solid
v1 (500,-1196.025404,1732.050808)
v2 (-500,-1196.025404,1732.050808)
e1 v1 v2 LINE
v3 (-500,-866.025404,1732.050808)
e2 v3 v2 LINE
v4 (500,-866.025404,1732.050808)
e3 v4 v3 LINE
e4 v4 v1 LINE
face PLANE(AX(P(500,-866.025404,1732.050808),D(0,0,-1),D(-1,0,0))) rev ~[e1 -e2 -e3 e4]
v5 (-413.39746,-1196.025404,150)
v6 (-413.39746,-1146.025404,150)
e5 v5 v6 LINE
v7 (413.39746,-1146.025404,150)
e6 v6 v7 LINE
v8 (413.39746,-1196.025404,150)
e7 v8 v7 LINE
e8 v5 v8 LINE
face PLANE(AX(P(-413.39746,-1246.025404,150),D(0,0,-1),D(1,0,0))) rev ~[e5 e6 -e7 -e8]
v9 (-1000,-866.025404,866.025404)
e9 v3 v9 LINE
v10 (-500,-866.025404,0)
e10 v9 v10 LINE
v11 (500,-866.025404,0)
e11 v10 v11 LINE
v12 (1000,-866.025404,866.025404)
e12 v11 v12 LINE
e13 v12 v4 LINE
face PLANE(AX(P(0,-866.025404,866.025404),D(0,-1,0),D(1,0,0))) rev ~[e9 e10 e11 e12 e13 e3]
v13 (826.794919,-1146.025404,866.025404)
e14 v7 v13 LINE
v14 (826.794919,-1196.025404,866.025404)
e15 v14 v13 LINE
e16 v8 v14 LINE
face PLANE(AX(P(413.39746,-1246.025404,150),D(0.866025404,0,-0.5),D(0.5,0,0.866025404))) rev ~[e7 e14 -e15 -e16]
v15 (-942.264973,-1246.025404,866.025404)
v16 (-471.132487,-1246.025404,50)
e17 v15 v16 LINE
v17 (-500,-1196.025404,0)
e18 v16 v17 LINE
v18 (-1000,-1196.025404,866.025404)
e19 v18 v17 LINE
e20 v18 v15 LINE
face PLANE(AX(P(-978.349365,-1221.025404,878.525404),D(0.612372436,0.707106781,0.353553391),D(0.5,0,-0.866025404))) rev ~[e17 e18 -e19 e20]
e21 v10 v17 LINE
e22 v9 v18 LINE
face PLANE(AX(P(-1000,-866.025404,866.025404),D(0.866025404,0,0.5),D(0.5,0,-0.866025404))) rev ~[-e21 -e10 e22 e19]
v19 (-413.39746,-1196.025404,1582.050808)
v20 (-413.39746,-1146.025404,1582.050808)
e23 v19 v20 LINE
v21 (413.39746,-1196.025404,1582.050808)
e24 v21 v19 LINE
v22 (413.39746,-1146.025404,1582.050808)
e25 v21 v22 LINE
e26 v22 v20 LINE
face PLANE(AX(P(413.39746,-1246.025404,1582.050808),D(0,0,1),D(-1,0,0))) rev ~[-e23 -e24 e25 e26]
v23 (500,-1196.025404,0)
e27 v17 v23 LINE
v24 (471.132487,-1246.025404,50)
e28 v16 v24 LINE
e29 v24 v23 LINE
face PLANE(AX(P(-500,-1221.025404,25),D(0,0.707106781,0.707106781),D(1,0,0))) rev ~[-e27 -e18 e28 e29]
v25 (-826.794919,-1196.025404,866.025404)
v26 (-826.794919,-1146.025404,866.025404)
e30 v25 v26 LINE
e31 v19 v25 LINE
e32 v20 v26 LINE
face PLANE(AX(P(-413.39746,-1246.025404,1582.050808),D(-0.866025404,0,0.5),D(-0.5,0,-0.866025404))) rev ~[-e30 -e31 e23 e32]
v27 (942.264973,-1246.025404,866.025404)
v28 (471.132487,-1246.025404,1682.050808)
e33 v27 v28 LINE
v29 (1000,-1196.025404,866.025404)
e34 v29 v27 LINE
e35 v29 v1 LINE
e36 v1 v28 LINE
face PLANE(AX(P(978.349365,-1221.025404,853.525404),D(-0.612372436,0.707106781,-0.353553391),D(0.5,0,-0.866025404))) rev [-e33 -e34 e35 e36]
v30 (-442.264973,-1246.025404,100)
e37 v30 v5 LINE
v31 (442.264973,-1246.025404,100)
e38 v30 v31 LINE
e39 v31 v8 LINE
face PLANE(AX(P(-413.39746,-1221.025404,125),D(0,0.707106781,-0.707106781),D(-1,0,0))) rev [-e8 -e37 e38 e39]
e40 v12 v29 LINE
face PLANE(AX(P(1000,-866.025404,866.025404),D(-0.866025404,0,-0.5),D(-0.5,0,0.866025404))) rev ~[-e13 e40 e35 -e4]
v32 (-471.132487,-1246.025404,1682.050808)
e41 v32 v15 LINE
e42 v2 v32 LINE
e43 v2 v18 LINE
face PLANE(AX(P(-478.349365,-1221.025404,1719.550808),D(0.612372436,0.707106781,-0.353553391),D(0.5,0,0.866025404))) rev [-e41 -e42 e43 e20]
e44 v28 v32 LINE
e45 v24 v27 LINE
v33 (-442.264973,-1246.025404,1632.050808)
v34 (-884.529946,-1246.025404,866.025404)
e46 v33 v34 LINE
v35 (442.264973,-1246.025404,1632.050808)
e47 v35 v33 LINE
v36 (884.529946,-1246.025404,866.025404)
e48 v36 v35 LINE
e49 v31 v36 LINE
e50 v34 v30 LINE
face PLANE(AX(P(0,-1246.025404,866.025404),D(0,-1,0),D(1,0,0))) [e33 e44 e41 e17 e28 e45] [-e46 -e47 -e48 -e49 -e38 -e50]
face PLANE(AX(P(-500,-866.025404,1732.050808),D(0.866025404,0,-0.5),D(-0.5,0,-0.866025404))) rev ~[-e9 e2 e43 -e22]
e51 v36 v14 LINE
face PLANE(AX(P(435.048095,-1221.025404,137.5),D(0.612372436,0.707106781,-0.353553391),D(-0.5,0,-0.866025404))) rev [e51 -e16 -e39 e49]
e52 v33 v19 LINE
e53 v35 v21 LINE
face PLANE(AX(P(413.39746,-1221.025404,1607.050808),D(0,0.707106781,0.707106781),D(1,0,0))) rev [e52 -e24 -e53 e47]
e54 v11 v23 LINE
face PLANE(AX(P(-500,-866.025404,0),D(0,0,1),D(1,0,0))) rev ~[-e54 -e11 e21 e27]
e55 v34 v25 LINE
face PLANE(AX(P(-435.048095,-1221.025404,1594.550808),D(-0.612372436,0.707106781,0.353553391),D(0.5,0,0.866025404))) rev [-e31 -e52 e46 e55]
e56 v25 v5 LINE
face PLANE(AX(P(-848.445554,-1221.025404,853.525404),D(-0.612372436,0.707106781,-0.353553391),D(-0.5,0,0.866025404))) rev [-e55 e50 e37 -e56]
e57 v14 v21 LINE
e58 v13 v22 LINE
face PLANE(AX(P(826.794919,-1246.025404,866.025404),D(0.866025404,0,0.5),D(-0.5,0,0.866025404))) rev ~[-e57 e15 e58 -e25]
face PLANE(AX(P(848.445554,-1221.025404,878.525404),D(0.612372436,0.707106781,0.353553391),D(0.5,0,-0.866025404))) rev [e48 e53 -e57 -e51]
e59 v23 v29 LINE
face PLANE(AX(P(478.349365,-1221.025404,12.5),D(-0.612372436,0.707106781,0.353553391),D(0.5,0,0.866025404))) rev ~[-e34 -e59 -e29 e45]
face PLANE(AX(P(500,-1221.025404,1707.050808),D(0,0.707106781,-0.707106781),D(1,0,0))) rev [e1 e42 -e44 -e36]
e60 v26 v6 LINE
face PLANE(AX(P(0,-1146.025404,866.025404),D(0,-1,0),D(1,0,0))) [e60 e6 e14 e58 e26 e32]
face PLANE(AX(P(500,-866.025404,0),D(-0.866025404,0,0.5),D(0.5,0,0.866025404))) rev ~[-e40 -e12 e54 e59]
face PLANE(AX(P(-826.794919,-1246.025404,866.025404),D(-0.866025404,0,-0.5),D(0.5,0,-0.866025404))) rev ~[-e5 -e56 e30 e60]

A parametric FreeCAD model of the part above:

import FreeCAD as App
import Part
import Sketcher
Q = App.Units.Quantity


def edges_at(feature, points):
    """Names of the edges that pass closest to the given points."""
    edges = feature.Shape.Edges
    near = lambda p: min(range(len(edges)), key=lambda i: edges[i].distToShape(Part.Vertex(*p))[0])
    return sorted({f"Edge{near(p) + 1}" for p in points})

doc = App.newDocument("Part")
body = doc.addObject("PartDesign::Body", "Body")

# Sketch on XY plane
sketch1 = body.newObject("Sketcher::SketchObject", "Sketch")
sketch1.AttachmentSupport = (doc.getObject("XY_Plane"), [""])
sketch1.MapMode = "FlatFace"
sketch1.addGeometry(Part.LineSegment(App.Vector(500, 866, 0), App.Vector(-500, 866, 0)), False)
sketch1.addGeometry(Part.LineSegment(App.Vector(-500, 866, 0), App.Vector(-1000, 0, 0)), False)
sketch1.addGeometry(Part.LineSegment(App.Vector(-1000, 0, 0), App.Vector(-500, -866, 0)), False)
sketch1.addGeometry(Part.LineSegment(App.Vector(-500, -866, 0), App.Vector(500, -866, 0)), False)
sketch1.addGeometry(Part.LineSegment(App.Vector(500, -866, 0), App.Vector(1000, 0, 0)), False)
sketch1.addGeometry(Part.LineSegment(App.Vector(1000, 0, 0), App.Vector(500, 866, 0)), False)
sketch1.addConstraint(Sketcher.Constraint("Coincident", 0, 2, 1, 1))
sketch1.addConstraint(Sketcher.Constraint("Coincident", 1, 2, 2, 1))
sketch1.addConstraint(Sketcher.Constraint("Coincident", 2, 2, 3, 1))
sketch1.addConstraint(Sketcher.Constraint("Coincident", 3, 2, 4, 1))
sketch1.addConstraint(Sketcher.Constraint("Coincident", 4, 2, 5, 1))
sketch1.addConstraint(Sketcher.Constraint("Coincident", 5, 2, 0, 1))
sketch1.addConstraint(Sketcher.Constraint("Horizontal", 0))
sketch1.addConstraint(Sketcher.Constraint("Horizontal", 3))
sketch1.addConstraint(Sketcher.Constraint("Symmetric", 0, 2, 3, 2, -1, 1))
sketch1.addConstraint(Sketcher.Constraint("Symmetric", 1, 2, 4, 2, -1, 1))
sketch1.addConstraint(Sketcher.Constraint("PointOnObject", 1, 2, -1))
sketch1.addConstraint(Sketcher.Constraint("Parallel", 2, 5))
sketch1.addConstraint(Sketcher.Constraint("Vertical", 0, 2, 2, 2))
sketch1.addConstraint(Sketcher.Constraint("DistanceX", 0, 2, 0, 1, 1000.0))
sketch1.addConstraint(Sketcher.Constraint("Angle", 1, Q("-120 deg")))
sketch1.addConstraint(Sketcher.Constraint("Distance", 1, 1000.0))
pad1 = body.newObject("PartDesign::Pad", "Pad")
pad1.Profile = sketch1
pad1.Length = 380

# Sketch on XY plane
sketch2 = body.newObject("Sketcher::SketchObject", "Sketch001")
sketch2.AttachmentSupport = (doc.getObject("XY_Plane"), [""])
sketch2.MapMode = "FlatFace"
sketch2.AttachmentOffset = App.Placement(App.Vector(0, 0, 380), App.Rotation())
sketch2.addGeometry(Part.LineSegment(App.Vector(-827, 0, 0), App.Vector(-413, -716, 0)), False)
sketch2.addGeometry(Part.LineSegment(App.Vector(-413, -716, 0), App.Vector(413, -716, 0)), False)
sketch2.addGeometry(Part.LineSegment(App.Vector(413, -716, 0), App.Vector(827, 0, 0)), False)
sketch2.addGeometry(Part.LineSegment(App.Vector(827, 0, 0), App.Vector(413, 716, 0)), False)
sketch2.addGeometry(Part.LineSegment(App.Vector(413, 716, 0), App.Vector(-413, 716, 0)), False)
sketch2.addGeometry(Part.LineSegment(App.Vector(-413, 716, 0), App.Vector(-827, 0, 0)), False)
sketch2.addConstraint(Sketcher.Constraint("Coincident", 0, 2, 1, 1))
sketch2.addConstraint(Sketcher.Constraint("Coincident", 1, 2, 2, 1))
sketch2.addConstraint(Sketcher.Constraint("Coincident", 2, 2, 3, 1))
sketch2.addConstraint(Sketcher.Constraint("Coincident", 3, 2, 4, 1))
sketch2.addConstraint(Sketcher.Constraint("Coincident", 4, 2, 5, 1))
sketch2.addConstraint(Sketcher.Constraint("Coincident", 5, 2, 0, 1))
sketch2.addConstraint(Sketcher.Constraint("Horizontal", 1))
sketch2.addConstraint(Sketcher.Constraint("Horizontal", 4))
sketch2.addConstraint(Sketcher.Constraint("Symmetric", 0, 2, 3, 2, -1, 1))
sketch2.addConstraint(Sketcher.Constraint("Symmetric", 2, 2, 5, 2, -1, 1))
sketch2.addConstraint(Sketcher.Constraint("PointOnObject", 2, 2, -1))
sketch2.addConstraint(Sketcher.Constraint("Parallel", 2, 5))
sketch2.addConstraint(Sketcher.Constraint("Vertical", 1, 2, 3, 2))
sketch2.addConstraint(Sketcher.Constraint("Angle", 0, Q("-60 deg")))
sketch2.addConstraint(Sketcher.Constraint("DistanceX", 1, 1, 1, 2, 826.794919))
sketch2.addConstraint(Sketcher.Constraint("Distance", 0, 826.794919))
pocket1 = body.newObject("PartDesign::Pocket", "Pocket")
pocket1.Profile = sketch2
pocket1.Length = 100
doc.recompute()

chamfer = body.newObject("PartDesign::Chamfer", "Chamfer")
chamfer.Base = (pocket1, edges_at(pocket1, [
    (0, 866.025, 380),
    (750, 433.013, 380),
    (-750, 433.013, 380),
    (750, -433.013, 380),
    (-750, -433.013, 380),
    (0, -866.025, 380),
    (0, 716.025, 380),
    (-620.096, 358.013, 380),
    (-620.096, -358.013, 380),
    (0, -716.025, 380),
    (620.096, -358.013, 380),
    (620.096, 358.013, 380),
]))
chamfer.Size = 50
body2 = doc.addObject("PartDesign::Body", "Body001")
doc.recompute()

body.Placement = App.Placement(App.Vector(0, -866.025404, 866.025404), App.Rotation(App.Vector(-1, 0, 0), 270))
boolean = body2.newObject("PartDesign::Boolean", "Boolean")
boolean.Type = "Fuse"
boolean.addObjects([body])

doc.recompute()
